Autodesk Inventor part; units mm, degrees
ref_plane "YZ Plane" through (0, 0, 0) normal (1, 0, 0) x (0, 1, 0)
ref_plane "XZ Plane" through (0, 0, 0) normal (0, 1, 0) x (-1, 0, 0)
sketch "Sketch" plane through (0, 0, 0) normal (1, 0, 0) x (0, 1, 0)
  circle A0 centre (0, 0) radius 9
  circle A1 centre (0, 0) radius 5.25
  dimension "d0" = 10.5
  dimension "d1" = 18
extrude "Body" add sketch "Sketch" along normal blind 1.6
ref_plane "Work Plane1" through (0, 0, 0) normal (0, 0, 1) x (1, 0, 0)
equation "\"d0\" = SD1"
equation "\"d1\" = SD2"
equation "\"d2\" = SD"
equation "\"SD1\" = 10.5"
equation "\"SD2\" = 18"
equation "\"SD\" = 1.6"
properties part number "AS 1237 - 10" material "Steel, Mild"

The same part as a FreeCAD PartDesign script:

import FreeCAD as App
import Part
import Sketcher
Q = App.Units.Quantity

doc = App.newDocument("Part")
body = doc.addObject("PartDesign::Body", "Body")

sketch1 = body.newObject("Sketcher::SketchObject", "Sketch")
sketch1.AttachmentSupport = (doc.getObject("YZ_Plane"), [""])
sketch1.MapMode = "FlatFace"
sketch1.addGeometry(Part.Circle(App.Vector(0, 0, 0), App.Vector(0, 0, 1), 9), False)
sketch1.addGeometry(Part.Circle(App.Vector(0, 0, 0), App.Vector(0, 0, 1), 5), False)
sketch1.addConstraint(Sketcher.Constraint("Coincident", 0, 3, -1, 1))
sketch1.addConstraint(Sketcher.Constraint("Coincident", 1, 3, -1, 1))
sketch1.addConstraint(Sketcher.Constraint("Diameter", 0, Q("18 mm")))
sketch1.addConstraint(Sketcher.Constraint("Diameter", 1, Q("10.5 mm")))
pad1 = body.newObject("PartDesign::Pad", "Pad")
pad1.Profile = sketch1
pad1.Length = 1.6

doc.recompute()
